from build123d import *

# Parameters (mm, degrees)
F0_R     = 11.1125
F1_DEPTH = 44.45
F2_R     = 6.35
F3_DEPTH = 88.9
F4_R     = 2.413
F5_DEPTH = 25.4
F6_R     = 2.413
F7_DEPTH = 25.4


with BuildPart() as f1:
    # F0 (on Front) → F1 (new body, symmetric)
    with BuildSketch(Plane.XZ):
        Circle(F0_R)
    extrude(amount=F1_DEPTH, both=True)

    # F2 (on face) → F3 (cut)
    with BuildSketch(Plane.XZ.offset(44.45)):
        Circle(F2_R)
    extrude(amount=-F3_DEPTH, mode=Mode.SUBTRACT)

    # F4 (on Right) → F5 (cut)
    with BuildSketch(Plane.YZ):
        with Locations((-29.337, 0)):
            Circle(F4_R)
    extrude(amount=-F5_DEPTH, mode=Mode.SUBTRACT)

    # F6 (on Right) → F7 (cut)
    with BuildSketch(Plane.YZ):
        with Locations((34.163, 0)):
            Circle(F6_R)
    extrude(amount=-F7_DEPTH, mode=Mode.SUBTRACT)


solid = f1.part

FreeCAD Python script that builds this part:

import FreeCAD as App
import Part
import Sketcher
Q = App.Units.Quantity

doc = App.newDocument("Part")
body = doc.addObject("PartDesign::Body", "Body")

# Sketch on XZ plane
sketch1 = body.newObject("Sketcher::SketchObject", "Sketch")
sketch1.AttachmentSupport = (doc.getObject("XZ_Plane"), [""])
sketch1.MapMode = "FlatFace"
sketch1.addGeometry(Part.Circle(App.Vector(0, 0, 0), App.Vector(0, 0, 1), 11), False)
sketch1.addConstraint([
    Sketcher.Constraint("Coincident", 0, 3, -1, 1),
    Sketcher.Constraint("Diameter", 0, Q("0.875 in")),
])
pad1 = body.newObject("PartDesign::Pad", "Pad")
pad1.Profile = sketch1
pad1.Length = Q("3.5 in")
pad1.Midplane = True

# Sketch on XZ plane
sketch2 = body.newObject("Sketcher::SketchObject", "Sketch001")
sketch2.AttachmentSupport = (doc.getObject("XZ_Plane"), [""])
sketch2.MapMode = "FlatFace"
sketch2.AttachmentOffset = App.Placement(App.Vector(0, 0, 1.75 * 25.4), App.Rotation())
sketch2.addGeometry(Part.Circle(App.Vector(0, 0, 0), App.Vector(0, 0, 1), 6), False)
sketch2.addConstraint([
    Sketcher.Constraint("Coincident", 0, 3, -1, 1),
    Sketcher.Constraint("Diameter", 0, Q("0.5 in")),
])
pocket1 = body.newObject("PartDesign::Pocket", "Pocket")
pocket1.Profile = sketch2
pocket1.Length = Q("3.5 in")

# Sketch on YZ plane
sketch3 = body.newObject("Sketcher::SketchObject", "Sketch002")
sketch3.AttachmentSupport = (doc.getObject("YZ_Plane"), [""])
sketch3.MapMode = "FlatFace"
sketch3.addGeometry(Part.Circle(App.Vector(-29.3, 0, 0), App.Vector(0, 0, 1), 2.4), False)
sketch3.addConstraint([
    Sketcher.Constraint("PointOnObject", 0, 3, -1),
    Sketcher.Constraint("Diameter", 0, Q("0.19 in")),
    Sketcher.Constraint("DistanceX", 0, 3, -1, 1, Q("1.155 in")),
])
pocket2 = body.newObject("PartDesign::Pocket", "Pocket001")
pocket2.Profile = sketch3
pocket2.Length = Q("1 in")

# Sketch on YZ plane
sketch4 = body.newObject("Sketcher::SketchObject", "Sketch003")
sketch4.AttachmentSupport = (doc.getObject("YZ_Plane"), [""])
sketch4.MapMode = "FlatFace"
sketch4.addGeometry(Part.Circle(App.Vector(34.2, 0, 0), App.Vector(0, 0, 1), 2.4), False)
sketch4.addConstraint([
    Sketcher.Constraint("PointOnObject", 0, 3, -1),
    Sketcher.Constraint("Diameter", 0, Q("0.19 in")),
    Sketcher.Constraint("DistanceX", -1, 1, 0, 3, Q("1.345 in")),
])
pocket3 = body.newObject("PartDesign::Pocket", "Pocket002")
pocket3.Profile = sketch4
pocket3.Length = Q("1 in")

doc.recompute()
